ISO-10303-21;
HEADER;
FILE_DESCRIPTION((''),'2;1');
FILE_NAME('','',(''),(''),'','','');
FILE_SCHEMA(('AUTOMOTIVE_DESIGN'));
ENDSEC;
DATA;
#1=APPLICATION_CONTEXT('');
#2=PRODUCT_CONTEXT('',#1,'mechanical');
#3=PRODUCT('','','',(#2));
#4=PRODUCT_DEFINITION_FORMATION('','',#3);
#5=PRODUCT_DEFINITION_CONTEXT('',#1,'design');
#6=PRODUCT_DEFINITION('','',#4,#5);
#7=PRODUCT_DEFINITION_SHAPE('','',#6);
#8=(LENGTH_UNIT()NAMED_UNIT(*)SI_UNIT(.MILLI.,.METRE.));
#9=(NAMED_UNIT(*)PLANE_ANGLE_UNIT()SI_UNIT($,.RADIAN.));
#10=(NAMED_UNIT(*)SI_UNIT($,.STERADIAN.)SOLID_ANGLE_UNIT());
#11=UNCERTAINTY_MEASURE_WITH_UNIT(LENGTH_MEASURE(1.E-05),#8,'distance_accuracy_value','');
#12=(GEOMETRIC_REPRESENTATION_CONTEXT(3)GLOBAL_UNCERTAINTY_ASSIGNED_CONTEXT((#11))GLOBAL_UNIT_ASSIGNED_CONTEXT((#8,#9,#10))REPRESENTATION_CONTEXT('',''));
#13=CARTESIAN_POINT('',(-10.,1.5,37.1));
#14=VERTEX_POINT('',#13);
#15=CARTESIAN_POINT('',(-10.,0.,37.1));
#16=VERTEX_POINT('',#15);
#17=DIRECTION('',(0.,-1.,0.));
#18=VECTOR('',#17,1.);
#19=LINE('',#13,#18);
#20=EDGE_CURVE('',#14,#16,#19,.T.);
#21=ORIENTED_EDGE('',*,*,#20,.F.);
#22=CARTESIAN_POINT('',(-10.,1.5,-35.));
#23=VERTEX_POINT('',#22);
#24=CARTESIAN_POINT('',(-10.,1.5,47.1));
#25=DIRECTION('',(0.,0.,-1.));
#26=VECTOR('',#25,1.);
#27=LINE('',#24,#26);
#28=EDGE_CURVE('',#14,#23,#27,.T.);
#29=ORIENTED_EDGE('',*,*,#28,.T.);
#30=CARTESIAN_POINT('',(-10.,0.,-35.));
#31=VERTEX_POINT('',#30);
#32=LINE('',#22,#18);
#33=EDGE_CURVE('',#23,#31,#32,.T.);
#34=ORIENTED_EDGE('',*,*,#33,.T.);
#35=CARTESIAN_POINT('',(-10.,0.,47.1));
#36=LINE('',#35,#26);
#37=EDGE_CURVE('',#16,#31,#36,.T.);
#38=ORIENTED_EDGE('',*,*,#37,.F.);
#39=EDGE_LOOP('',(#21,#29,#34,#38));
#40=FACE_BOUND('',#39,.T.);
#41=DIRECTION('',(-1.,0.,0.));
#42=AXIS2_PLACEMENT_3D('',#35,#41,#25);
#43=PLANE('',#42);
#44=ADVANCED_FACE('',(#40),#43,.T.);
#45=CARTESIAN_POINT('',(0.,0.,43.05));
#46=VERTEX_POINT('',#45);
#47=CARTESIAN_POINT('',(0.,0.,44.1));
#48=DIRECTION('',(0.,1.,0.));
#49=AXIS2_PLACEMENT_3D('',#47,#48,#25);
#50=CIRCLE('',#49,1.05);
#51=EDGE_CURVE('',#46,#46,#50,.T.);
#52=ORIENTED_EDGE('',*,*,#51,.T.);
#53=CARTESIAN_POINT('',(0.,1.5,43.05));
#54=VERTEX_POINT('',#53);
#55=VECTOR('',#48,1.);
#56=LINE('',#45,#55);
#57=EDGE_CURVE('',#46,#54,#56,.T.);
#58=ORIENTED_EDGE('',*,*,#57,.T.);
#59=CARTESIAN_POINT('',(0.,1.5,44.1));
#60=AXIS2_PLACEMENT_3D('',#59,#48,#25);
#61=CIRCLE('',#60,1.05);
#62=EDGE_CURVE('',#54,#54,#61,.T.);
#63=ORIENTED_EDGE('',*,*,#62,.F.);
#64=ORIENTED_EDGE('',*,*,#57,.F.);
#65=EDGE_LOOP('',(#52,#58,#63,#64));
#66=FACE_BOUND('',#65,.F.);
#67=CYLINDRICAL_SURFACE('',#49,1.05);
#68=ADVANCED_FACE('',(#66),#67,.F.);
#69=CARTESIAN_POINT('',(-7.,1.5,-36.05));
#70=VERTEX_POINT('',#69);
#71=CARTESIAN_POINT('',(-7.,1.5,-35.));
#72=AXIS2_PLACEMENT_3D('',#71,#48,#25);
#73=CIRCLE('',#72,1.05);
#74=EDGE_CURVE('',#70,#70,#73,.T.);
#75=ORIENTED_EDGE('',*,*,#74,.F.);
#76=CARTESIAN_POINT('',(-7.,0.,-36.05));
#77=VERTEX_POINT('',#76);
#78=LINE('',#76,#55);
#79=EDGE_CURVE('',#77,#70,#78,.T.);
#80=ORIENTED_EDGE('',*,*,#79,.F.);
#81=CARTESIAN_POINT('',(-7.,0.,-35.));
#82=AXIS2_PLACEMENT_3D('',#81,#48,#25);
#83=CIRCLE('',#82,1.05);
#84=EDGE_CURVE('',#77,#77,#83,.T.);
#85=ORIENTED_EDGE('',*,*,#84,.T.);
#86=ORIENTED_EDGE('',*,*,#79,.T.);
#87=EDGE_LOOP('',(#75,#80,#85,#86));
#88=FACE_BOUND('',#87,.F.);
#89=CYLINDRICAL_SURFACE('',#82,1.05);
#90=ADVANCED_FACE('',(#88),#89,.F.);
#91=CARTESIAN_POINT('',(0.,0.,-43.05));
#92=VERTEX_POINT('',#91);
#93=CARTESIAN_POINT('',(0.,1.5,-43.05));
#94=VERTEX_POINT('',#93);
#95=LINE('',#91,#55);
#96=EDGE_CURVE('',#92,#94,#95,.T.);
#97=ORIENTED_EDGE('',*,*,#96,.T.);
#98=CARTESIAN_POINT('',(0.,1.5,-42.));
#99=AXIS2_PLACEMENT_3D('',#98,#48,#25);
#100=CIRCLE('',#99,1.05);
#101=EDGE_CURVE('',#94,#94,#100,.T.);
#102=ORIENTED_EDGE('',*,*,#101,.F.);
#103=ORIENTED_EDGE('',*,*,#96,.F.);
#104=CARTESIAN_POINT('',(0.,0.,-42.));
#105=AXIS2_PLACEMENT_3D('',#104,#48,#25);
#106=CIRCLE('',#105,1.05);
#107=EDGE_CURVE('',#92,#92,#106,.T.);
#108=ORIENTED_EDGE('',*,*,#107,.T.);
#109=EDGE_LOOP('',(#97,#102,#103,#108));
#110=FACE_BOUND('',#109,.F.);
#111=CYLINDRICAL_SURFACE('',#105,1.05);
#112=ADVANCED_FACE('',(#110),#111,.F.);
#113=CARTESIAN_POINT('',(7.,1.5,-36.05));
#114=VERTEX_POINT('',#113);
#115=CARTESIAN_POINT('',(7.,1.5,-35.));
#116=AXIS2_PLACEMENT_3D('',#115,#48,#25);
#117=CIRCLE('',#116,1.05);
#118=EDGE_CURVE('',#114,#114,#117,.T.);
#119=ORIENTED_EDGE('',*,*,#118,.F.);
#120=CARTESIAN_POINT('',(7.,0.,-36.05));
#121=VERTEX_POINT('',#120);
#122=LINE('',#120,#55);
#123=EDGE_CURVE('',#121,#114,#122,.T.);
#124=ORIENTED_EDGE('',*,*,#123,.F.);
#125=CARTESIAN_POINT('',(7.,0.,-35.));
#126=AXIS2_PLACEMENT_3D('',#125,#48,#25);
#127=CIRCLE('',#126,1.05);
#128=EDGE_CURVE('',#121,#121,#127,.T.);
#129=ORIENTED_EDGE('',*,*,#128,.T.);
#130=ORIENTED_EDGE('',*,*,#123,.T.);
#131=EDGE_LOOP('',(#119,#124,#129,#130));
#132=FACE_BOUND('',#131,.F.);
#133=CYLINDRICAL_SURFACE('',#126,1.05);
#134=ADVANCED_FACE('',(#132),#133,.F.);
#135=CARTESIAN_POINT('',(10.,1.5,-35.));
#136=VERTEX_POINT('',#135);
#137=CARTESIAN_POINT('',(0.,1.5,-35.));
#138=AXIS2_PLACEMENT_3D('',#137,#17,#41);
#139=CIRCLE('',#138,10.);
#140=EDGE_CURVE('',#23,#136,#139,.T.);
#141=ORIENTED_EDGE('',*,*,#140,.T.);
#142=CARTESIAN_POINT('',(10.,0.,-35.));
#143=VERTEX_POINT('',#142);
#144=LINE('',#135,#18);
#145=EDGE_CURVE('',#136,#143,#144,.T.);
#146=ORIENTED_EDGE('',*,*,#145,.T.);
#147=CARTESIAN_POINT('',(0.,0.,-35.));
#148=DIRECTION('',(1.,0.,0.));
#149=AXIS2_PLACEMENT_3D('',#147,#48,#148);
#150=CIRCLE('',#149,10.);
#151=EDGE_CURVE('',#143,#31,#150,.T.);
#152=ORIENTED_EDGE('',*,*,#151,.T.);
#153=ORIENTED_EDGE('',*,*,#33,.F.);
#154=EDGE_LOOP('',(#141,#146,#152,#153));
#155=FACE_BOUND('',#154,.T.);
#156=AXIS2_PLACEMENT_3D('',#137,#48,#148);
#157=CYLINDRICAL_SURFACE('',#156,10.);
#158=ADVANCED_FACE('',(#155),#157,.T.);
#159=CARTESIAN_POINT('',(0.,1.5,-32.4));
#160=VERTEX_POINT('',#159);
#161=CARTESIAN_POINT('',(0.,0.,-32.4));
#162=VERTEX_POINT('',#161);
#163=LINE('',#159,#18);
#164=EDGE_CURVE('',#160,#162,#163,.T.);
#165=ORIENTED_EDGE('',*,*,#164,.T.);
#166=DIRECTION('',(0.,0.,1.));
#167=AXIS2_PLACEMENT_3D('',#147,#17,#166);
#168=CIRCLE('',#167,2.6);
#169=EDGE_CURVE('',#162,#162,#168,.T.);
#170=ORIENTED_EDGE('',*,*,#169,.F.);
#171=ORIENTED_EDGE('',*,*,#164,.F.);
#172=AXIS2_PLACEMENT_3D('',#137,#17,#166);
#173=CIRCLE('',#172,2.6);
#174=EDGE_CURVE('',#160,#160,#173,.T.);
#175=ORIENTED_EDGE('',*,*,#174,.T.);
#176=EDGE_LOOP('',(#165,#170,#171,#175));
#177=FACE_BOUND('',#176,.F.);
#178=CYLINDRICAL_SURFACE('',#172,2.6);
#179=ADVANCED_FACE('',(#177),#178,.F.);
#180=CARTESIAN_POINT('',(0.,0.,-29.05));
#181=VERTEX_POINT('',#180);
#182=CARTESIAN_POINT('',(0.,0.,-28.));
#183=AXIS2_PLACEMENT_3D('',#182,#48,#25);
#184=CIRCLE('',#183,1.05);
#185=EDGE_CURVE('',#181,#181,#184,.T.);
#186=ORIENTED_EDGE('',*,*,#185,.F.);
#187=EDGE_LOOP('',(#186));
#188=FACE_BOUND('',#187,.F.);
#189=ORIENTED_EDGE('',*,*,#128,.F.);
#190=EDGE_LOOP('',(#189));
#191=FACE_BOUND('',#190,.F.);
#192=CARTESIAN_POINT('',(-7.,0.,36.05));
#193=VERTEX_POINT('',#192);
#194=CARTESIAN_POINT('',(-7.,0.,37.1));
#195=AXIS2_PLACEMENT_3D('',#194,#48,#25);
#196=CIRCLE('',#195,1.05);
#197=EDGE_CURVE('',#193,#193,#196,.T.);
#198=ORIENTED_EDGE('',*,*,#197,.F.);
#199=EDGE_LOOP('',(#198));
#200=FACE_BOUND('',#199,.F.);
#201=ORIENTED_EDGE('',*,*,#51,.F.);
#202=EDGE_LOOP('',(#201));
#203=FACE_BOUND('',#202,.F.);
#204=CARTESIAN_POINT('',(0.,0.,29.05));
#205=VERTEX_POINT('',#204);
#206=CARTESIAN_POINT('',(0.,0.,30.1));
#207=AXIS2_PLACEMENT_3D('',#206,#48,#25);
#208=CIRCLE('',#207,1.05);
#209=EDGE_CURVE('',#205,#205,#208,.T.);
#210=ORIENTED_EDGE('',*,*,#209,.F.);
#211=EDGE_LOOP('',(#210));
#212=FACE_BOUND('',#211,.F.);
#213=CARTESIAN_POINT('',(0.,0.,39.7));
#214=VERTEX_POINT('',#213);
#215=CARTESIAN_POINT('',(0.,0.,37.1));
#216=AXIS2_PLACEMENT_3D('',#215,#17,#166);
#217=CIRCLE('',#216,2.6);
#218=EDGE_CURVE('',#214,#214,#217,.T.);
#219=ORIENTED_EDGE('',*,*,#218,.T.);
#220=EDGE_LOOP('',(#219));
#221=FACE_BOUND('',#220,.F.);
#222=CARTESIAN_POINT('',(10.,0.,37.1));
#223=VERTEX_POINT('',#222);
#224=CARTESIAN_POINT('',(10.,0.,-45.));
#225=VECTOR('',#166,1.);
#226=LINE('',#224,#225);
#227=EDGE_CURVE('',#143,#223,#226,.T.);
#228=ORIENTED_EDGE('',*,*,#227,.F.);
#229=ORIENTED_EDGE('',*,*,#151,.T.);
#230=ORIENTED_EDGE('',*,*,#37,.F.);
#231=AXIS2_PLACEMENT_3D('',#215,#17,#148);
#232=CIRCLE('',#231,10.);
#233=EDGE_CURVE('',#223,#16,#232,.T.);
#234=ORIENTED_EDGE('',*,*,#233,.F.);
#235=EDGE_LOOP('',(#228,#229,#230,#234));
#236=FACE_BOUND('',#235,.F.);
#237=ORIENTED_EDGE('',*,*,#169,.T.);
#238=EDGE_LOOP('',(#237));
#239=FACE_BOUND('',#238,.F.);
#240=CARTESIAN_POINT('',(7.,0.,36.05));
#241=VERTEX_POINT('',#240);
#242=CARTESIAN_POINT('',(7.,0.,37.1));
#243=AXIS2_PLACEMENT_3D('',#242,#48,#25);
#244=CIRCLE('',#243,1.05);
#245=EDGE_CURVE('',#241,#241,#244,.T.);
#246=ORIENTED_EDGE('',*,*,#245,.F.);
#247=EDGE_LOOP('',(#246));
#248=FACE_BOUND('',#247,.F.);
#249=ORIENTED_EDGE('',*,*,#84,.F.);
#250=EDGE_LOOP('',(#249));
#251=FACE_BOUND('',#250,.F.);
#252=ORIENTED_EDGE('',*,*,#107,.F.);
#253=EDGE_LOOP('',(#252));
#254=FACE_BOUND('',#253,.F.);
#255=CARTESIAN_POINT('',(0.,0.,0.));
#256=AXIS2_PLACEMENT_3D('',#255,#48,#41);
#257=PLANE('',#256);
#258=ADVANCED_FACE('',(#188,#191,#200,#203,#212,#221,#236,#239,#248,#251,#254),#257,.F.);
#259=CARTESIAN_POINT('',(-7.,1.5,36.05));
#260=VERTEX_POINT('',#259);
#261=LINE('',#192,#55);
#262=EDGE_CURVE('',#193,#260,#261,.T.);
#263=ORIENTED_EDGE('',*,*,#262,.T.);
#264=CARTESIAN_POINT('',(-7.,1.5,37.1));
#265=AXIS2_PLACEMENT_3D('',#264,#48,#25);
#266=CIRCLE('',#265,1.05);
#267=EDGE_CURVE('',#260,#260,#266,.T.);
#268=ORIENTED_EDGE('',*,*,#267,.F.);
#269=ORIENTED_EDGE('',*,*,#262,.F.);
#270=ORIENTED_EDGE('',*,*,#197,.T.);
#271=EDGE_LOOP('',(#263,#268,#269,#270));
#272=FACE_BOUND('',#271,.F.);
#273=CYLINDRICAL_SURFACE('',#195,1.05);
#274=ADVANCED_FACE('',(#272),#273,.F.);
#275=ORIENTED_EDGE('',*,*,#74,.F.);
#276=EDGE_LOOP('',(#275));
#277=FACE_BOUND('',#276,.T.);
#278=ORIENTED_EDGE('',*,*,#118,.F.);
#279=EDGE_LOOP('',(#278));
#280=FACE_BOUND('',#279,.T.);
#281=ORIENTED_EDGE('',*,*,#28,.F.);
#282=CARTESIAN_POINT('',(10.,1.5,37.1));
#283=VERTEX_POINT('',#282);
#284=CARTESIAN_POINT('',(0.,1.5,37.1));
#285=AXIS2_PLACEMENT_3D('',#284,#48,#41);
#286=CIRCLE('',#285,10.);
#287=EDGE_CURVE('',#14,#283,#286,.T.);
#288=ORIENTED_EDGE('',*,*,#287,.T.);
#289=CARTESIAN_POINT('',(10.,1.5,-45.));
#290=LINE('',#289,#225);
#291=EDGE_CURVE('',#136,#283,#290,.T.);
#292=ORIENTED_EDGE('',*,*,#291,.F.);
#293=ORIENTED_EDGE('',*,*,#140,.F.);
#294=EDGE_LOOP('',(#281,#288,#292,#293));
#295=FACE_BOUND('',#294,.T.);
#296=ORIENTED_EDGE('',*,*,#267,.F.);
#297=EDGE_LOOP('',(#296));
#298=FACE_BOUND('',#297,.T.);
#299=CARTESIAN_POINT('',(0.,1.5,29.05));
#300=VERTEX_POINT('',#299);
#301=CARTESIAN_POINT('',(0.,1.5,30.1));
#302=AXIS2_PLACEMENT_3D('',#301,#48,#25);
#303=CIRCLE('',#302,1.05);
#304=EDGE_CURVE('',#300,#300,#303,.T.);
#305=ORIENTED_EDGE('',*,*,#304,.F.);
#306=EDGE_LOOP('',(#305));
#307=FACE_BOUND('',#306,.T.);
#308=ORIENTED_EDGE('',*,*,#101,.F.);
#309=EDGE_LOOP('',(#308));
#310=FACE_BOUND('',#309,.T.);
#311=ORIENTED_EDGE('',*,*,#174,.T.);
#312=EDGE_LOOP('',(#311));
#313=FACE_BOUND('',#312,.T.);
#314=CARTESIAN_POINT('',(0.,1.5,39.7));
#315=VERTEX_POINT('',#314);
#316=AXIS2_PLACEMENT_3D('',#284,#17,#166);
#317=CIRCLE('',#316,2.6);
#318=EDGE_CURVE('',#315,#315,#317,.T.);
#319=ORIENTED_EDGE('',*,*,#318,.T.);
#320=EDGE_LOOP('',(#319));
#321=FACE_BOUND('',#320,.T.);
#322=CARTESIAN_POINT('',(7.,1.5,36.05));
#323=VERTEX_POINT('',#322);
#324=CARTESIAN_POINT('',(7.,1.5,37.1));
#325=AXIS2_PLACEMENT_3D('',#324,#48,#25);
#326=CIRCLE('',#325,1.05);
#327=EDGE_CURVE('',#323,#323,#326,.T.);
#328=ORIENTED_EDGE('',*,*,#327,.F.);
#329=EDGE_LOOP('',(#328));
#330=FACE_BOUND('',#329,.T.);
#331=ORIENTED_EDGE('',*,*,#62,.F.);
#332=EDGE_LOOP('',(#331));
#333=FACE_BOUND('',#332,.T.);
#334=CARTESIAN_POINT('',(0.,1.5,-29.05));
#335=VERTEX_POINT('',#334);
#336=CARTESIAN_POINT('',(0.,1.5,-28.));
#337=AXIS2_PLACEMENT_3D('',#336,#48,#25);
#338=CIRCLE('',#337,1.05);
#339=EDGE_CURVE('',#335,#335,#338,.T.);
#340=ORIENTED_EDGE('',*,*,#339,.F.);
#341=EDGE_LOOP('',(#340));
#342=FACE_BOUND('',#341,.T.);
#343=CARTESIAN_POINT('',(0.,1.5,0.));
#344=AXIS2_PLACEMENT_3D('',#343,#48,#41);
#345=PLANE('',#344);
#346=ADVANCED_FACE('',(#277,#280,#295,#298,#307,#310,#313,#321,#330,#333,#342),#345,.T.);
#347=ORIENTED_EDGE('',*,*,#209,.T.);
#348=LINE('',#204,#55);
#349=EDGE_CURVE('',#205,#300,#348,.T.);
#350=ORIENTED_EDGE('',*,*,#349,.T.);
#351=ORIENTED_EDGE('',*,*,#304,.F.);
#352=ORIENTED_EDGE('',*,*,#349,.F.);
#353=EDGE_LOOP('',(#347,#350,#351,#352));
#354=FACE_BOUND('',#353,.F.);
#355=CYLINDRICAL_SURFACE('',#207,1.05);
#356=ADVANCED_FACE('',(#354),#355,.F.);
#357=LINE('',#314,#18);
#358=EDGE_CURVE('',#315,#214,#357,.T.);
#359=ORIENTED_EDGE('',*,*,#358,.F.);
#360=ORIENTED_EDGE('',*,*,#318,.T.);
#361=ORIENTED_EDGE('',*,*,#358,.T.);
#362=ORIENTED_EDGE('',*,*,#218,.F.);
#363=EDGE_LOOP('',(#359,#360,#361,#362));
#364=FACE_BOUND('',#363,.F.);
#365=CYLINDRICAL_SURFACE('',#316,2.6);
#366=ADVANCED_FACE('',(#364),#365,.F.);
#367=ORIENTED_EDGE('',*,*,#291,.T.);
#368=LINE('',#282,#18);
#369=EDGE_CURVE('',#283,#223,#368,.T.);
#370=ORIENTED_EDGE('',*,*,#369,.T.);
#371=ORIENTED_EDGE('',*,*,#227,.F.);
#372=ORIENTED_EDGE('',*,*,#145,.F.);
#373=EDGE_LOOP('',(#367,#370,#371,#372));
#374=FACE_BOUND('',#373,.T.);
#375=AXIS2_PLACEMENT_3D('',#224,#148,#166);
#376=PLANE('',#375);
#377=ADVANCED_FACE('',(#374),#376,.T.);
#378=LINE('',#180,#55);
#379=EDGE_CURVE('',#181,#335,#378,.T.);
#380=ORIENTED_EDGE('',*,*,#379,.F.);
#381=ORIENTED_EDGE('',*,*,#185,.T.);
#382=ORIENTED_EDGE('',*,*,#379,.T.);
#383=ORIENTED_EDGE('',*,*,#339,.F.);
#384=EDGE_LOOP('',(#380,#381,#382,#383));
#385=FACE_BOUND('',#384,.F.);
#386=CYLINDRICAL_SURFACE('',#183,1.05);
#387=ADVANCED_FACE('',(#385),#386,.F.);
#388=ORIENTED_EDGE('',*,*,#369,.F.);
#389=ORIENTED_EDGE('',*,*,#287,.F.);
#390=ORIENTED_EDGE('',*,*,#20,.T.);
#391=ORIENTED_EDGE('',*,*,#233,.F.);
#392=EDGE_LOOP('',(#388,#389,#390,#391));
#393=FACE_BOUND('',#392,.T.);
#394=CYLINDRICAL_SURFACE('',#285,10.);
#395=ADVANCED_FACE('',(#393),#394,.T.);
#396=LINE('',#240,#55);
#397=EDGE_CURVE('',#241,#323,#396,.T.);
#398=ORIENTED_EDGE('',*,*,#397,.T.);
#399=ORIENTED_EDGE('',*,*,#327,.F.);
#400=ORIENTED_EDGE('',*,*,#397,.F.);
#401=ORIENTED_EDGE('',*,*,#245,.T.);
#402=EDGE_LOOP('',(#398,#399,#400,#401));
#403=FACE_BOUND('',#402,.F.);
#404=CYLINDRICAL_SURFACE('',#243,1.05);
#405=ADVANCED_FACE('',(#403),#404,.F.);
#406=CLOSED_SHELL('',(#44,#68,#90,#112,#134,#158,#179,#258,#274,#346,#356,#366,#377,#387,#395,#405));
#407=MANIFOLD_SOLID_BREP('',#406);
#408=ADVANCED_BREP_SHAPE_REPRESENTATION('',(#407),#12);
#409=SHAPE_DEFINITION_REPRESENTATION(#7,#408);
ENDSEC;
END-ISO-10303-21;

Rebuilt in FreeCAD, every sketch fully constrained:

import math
import FreeCAD as App
import Part
import Sketcher
Q = App.Units.Quantity

doc = App.newDocument("Part")
body = doc.addObject("PartDesign::Body", "Body")

# Sketch on XZ plane
sketch1 = body.newObject("Sketcher::SketchObject", "Sketch")
sketch1.AttachmentSupport = (doc.getObject("XZ_Plane"), [""])
sketch1.MapMode = "FlatFace"
sketch1.addGeometry([
    Part.LineSegment(App.Vector(10, -45, 0), App.Vector(-10, -45, 0)),
    Part.LineSegment(App.Vector(-10, -45, 0), App.Vector(-10, 47.1, 0)),
    Part.LineSegment(App.Vector(-10, 47.1, 0), App.Vector(10, 47.1, 0)),
    Part.LineSegment(App.Vector(10, 47.1, 0), App.Vector(10, -45, 0)),
], False)
sketch1.addConstraint([
    Sketcher.Constraint("Coincident", 0, 2, 1, 1),
    Sketcher.Constraint("Coincident", 1, 2, 2, 1),
    Sketcher.Constraint("Coincident", 2, 2, 3, 1),
    Sketcher.Constraint("Coincident", 3, 2, 0, 1),
    Sketcher.Constraint("Horizontal", 0),
    Sketcher.Constraint("Vertical", 1),
    Sketcher.Constraint("Horizontal", 2),
    Sketcher.Constraint("Vertical", 3),
    Sketcher.Constraint("DistanceX", 0, 2, 0, 1, Q("20 mm")),
    Sketcher.Constraint("DistanceY", 1, 1, 1, 2, Q("92.1 mm")),
    Sketcher.Constraint("DistanceX", 0, 2, -1, 1, Q("10 mm")),
    Sketcher.Constraint("DistanceY", 0, 2, -1, 1, Q("45 mm")),
])
pad1 = body.newObject("PartDesign::Pad", "Pad")
pad1.Profile = sketch1
pad1.Length = 1.5
pad1.Reversed = True

# Sketch on XZ plane
sketch2 = body.newObject("Sketcher::SketchObject", "Sketch001")
sketch2.AttachmentSupport = (doc.getObject("XZ_Plane"), [""])
sketch2.MapMode = "FlatFace"
sketch2.addGeometry([
    Part.Circle(App.Vector(0, 30.1, 0), App.Vector(0, 0, 1), 1.05),  # 0
    Part.Circle(App.Vector(7, 37.1, 0), App.Vector(0, 0, 1), 1.05),  # 1
    Part.Circle(App.Vector(0, 44.1, 0), App.Vector(0, 0, 1), 1.05),  # 2
    Part.Circle(App.Vector(-7, 37.1, 0), App.Vector(0, 0, 1), 1.05),  # 3
    Part.Circle(App.Vector(0, -42, 0), App.Vector(0, 0, 1), 1.05),  # 4
    Part.Circle(App.Vector(7, -35, 0), App.Vector(0, 0, 1), 1.05),  # 5
    Part.Circle(App.Vector(0, -28, 0), App.Vector(0, 0, 1), 1.05),  # 6
    Part.Circle(App.Vector(-7, -35, 0), App.Vector(0, 0, 1), 1.05),  # 7
], False)
sketch2.addConstraint([
    Sketcher.Constraint("Equal", 0, 1),
    Sketcher.Constraint("Equal", 1, 2),
    Sketcher.Constraint("Equal", 2, 3),
    Sketcher.Constraint("Equal", 3, 4),
    Sketcher.Constraint("Equal", 4, 5),
    Sketcher.Constraint("Equal", 5, 6),
    Sketcher.Constraint("Equal", 6, 7),
    Sketcher.Constraint("Symmetric", 1, 3, 3, 3, -2),
    Sketcher.Constraint("Symmetric", 5, 3, 7, 3, -2),
    Sketcher.Constraint("PointOnObject", 0, 3, -2),
    Sketcher.Constraint("PointOnObject", 2, 3, -2),
    Sketcher.Constraint("PointOnObject", 4, 3, -2),
    Sketcher.Constraint("PointOnObject", 6, 3, -2),
    Sketcher.Constraint("Vertical", 1, 3, 5, 3),
    Sketcher.Constraint("Diameter", 0, Q("2.1 mm")),
    Sketcher.Constraint("DistanceX", -1, 1, 1, 3, Q("7 mm")),
    Sketcher.Constraint("DistanceY", 4, 3, -1, 1, Q("42 mm")),
    Sketcher.Constraint("DistanceY", 5, 3, -1, 1, Q("35 mm")),
    Sketcher.Constraint("DistanceY", 6, 3, -1, 1, Q("28 mm")),
    Sketcher.Constraint("DistanceY", 0, 3, 1, 3, Q("7 mm")),
    Sketcher.Constraint("DistanceY", 1, 3, 2, 3, Q("7 mm")),
    Sketcher.Constraint("DistanceY", -1, 1, 0, 3, Q("30.1 mm")),
])
doc.recompute()
hole = body.newObject("PartDesign::Hole", "Hole")
hole.Profile = sketch2
hole.ThreadType = "None"
hole.Diameter = 2.1
hole.DepthType = "Dimension"
hole.Depth = 1.5
hole.DrillPoint = "Flat"

# Sketch on XZ plane
sketch3 = body.newObject("Sketcher::SketchObject", "Sketch002")
sketch3.AttachmentSupport = (doc.getObject("XZ_Plane"), [""])
sketch3.MapMode = "FlatFace"
sketch3.AttachmentOffset = App.Placement(App.Vector(0, 0, -1.5), App.Rotation())
sketch3.addGeometry([
    Part.ArcOfCircle(Part.Circle(App.Vector(0, -35, 0), App.Vector(0, 0, 1), 10), math.radians(-90), math.radians(0)),  # 0
    Part.LineSegment(App.Vector(10, -35, 0), App.Vector(10, -45, 0)),  # 1
    Part.LineSegment(App.Vector(10, -45, 0), App.Vector(0, -45, 0)),  # 2
    Part.ArcOfCircle(Part.Circle(App.Vector(0, -35, 0), App.Vector(0, 0, 1), 10), math.radians(180), math.radians(270)),  # 3
    Part.LineSegment(App.Vector(0, -45, 0), App.Vector(-10, -45, 0)),  # 4
    Part.LineSegment(App.Vector(-10, -45, 0), App.Vector(-10, -35, 0)),  # 5
    Part.LineSegment(App.Vector(10, 47.1, 0), App.Vector(10, 37.1, 0)),  # 6
    Part.ArcOfCircle(Part.Circle(App.Vector(0, 37.1, 0), App.Vector(0, 0, 1), 10), math.radians(0), math.radians(90)),  # 7
    Part.LineSegment(App.Vector(0, 47.1, 0), App.Vector(10, 47.1, 0)),  # 8
    Part.LineSegment(App.Vector(-10, 47.1, 0), App.Vector(0, 47.1, 0)),  # 9
    Part.ArcOfCircle(Part.Circle(App.Vector(0, 37.1, 0), App.Vector(0, 0, 1), 10), math.radians(90), math.radians(180)),  # 10
    Part.LineSegment(App.Vector(-10, 37.1, 0), App.Vector(-10, 47.1, 0)),  # 11
], False)
sketch3.addConstraint([
    Sketcher.Constraint("Tangent", 0, 2, 1, 1),
    Sketcher.Constraint("Coincident", 1, 2, 2, 1),
    Sketcher.Constraint("Tangent", 2, 2, 0, 1),
    Sketcher.Constraint("Tangent", 3, 2, 4, 1),
    Sketcher.Constraint("Coincident", 4, 2, 5, 1),
    Sketcher.Constraint("Tangent", 5, 2, 3, 1),
    Sketcher.Constraint("Tangent", 6, 2, 7, 1),
    Sketcher.Constraint("Tangent", 7, 2, 8, 1),
    Sketcher.Constraint("Coincident", 8, 2, 6, 1),
    Sketcher.Constraint("Tangent", 9, 2, 10, 1),
    Sketcher.Constraint("Tangent", 10, 2, 11, 1),
    Sketcher.Constraint("Coincident", 11, 2, 9, 1),
    Sketcher.Constraint("Vertical", 1),
    Sketcher.Constraint("Horizontal", 2),
    Sketcher.Constraint("Horizontal", 4),
    Sketcher.Constraint("Vertical", 5),
    Sketcher.Constraint("Vertical", 6),
    Sketcher.Constraint("Horizontal", 8),
    Sketcher.Constraint("Horizontal", 9),
    Sketcher.Constraint("Vertical", 11),
    Sketcher.Constraint("Coincident", 3, 3, 0, 3),
    Sketcher.Constraint("Coincident", 10, 3, 7, 3),
    Sketcher.Constraint("Equal", 0, 3),
    Sketcher.Constraint("Equal", 3, 7),
    Sketcher.Constraint("Equal", 7, 10),
    Sketcher.Constraint("PointOnObject", 0, 3, -2),
    Sketcher.Constraint("PointOnObject", 7, 3, -2),
    Sketcher.Constraint("Radius", 0, Q("10 mm")),
    Sketcher.Constraint("DistanceY", 0, 3, -1, 1, Q("35 mm")),
    Sketcher.Constraint("DistanceY", -1, 1, 7, 3, Q("37.1 mm")),
])
pocket1 = body.newObject("PartDesign::Pocket", "Pocket")
pocket1.Profile = sketch3
pocket1.Length = 10
pocket1.Reversed = True

# Sketch on XZ plane
sketch4 = body.newObject("Sketcher::SketchObject", "Sketch003")
sketch4.AttachmentSupport = (doc.getObject("XZ_Plane"), [""])
sketch4.MapMode = "FlatFace"
sketch4.AttachmentOffset = App.Placement(App.Vector(0, 0, -1.5), App.Rotation())
sketch4.addGeometry([
    Part.Circle(App.Vector(0, -35, 0), App.Vector(0, 0, 1), 2.6),
    Part.Circle(App.Vector(0, 37.1, 0), App.Vector(0, 0, 1), 2.6),
], False)
sketch4.addConstraint([
    Sketcher.Constraint("Equal", 0, 1),
    Sketcher.Constraint("PointOnObject", 0, 3, -2),
    Sketcher.Constraint("PointOnObject", 1, 3, -2),
    Sketcher.Constraint("Diameter", 0, Q("5.2 mm")),
    Sketcher.Constraint("DistanceY", 0, 3, -1, 1, Q("35 mm")),
    Sketcher.Constraint("DistanceY", -1, 1, 1, 3, Q("37.1 mm")),
])
doc.recompute()
hole2 = body.newObject("PartDesign::Hole", "Hole001")
hole2.Profile = sketch4
hole2.ThreadType = "None"
hole2.Diameter = 5.2
hole2.DepthType = "Dimension"
hole2.Depth = 1.5
hole2.DrillPoint = "Flat"
hole2.Reversed = True

doc.recompute()
